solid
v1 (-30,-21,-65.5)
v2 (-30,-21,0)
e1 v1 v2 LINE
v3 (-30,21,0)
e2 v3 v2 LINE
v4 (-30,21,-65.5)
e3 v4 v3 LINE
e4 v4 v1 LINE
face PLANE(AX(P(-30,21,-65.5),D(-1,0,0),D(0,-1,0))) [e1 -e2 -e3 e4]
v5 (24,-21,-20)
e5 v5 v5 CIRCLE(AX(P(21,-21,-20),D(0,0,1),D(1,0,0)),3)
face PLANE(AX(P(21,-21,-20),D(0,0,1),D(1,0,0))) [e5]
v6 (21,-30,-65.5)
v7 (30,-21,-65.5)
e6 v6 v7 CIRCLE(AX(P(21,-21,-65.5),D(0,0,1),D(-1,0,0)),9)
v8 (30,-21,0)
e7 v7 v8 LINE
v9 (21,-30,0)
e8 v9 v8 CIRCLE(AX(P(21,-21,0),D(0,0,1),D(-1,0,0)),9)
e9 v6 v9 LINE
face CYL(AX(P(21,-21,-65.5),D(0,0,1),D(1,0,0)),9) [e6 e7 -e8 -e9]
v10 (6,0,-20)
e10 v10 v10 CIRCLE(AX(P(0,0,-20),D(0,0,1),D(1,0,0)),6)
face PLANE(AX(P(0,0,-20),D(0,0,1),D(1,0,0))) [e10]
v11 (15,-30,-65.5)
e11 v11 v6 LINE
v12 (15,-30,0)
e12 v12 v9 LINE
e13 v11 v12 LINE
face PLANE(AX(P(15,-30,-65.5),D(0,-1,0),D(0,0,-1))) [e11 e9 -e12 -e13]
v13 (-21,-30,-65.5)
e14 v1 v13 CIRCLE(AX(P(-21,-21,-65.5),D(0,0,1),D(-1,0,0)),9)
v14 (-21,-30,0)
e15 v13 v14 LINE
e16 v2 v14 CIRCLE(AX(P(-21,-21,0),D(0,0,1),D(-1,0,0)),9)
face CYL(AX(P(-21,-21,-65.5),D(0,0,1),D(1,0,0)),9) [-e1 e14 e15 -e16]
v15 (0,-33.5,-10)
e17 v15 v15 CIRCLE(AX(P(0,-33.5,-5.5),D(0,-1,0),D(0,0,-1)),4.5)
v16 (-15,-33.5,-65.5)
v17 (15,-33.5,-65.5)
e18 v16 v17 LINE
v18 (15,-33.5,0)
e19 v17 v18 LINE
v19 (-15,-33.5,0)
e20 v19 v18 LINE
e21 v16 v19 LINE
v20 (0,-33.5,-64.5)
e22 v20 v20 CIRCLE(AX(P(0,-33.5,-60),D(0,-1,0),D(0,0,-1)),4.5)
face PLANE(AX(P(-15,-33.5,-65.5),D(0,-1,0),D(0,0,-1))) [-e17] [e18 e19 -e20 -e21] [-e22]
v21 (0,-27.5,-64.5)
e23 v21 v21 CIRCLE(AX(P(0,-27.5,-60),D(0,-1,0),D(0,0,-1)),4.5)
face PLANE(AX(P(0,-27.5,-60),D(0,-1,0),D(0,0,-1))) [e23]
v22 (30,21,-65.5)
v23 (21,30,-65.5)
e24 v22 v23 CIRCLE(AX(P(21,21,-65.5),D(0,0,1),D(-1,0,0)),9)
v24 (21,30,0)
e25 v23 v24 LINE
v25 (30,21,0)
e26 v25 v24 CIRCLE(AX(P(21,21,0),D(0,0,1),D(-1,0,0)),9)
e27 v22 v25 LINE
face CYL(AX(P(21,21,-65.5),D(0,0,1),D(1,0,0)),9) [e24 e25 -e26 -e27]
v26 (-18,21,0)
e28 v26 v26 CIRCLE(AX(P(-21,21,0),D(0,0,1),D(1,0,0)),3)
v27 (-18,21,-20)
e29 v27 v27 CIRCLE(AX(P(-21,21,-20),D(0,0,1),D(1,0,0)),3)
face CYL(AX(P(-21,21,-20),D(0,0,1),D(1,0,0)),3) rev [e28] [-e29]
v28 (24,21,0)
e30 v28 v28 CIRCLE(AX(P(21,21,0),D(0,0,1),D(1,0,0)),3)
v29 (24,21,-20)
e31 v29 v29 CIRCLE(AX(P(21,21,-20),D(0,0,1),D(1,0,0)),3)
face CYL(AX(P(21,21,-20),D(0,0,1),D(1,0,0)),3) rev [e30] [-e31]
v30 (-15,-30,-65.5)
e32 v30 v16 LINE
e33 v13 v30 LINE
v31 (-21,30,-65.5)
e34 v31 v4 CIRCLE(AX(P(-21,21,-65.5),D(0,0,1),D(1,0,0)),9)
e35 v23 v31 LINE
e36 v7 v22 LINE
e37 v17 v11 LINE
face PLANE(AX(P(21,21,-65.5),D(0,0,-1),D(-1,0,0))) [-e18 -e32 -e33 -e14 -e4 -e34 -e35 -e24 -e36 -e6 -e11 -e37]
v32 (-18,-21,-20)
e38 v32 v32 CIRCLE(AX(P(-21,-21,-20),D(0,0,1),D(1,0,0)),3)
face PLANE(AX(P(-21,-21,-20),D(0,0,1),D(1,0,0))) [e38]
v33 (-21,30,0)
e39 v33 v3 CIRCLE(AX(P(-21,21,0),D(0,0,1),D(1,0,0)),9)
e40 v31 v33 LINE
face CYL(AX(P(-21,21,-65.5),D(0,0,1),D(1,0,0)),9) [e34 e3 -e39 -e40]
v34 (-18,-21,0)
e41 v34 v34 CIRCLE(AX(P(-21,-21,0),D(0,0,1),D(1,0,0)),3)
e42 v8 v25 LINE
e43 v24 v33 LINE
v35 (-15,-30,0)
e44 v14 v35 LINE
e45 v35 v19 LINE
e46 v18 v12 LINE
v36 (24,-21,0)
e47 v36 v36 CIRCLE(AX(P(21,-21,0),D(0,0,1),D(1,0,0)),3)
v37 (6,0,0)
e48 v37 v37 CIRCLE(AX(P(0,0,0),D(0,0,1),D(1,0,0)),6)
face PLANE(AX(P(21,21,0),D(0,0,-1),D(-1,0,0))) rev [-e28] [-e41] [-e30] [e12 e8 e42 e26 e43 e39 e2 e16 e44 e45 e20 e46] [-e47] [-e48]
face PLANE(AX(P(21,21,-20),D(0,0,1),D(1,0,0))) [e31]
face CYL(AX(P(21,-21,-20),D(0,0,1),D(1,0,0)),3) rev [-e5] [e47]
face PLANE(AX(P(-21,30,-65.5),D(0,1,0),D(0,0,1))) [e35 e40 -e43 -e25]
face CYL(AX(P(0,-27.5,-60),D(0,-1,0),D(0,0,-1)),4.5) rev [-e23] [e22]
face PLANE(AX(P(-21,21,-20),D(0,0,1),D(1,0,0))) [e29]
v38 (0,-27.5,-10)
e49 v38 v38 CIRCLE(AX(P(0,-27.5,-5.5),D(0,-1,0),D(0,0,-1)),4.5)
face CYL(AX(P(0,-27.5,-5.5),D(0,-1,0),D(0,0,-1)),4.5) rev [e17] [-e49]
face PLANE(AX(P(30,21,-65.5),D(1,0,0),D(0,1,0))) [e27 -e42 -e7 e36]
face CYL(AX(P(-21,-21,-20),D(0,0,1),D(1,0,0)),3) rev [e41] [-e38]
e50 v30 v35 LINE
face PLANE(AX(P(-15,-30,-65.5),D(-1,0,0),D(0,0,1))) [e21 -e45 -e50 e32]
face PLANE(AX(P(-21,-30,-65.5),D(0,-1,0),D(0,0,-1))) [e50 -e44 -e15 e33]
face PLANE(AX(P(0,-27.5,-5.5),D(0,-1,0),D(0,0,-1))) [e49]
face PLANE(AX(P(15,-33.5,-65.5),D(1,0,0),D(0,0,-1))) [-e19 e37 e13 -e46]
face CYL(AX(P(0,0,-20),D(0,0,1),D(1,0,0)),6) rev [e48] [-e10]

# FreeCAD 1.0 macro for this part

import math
import FreeCAD as App
import Part
import Sketcher

doc = App.newDocument("Part")
body = doc.addObject("PartDesign::Body", "Body")

sketch1 = doc.addObject("Sketcher::SketchObject", "Sketch")
body.addObject(sketch1)
sketch1.AttachmentSupport = (doc.XY_Plane, [""])
sketch1.MapMode = "FlatFace"
sketch1.addGeometry([
    Part.LineSegment(App.Vector(-15, -30, 0), App.Vector(-15, -33.5, 0)),
    Part.LineSegment(App.Vector(-15, -33.5, 0), App.Vector(15, -33.5, 0)),
    Part.LineSegment(App.Vector(15, -33.5, 0), App.Vector(15, -30, 0)),
    Part.LineSegment(App.Vector(15, -30, 0), App.Vector(21, -30, 0)),
    Part.ArcOfCircle(Part.Circle(App.Vector(21, -21, 0), App.Vector(0, 0, 1), 9), math.radians(-90), math.radians(0)),
    Part.LineSegment(App.Vector(30, -21, 0), App.Vector(30, 21, 0)),
    Part.ArcOfCircle(Part.Circle(App.Vector(21, 21, 0), App.Vector(0, 0, 1), 9), math.radians(0), math.radians(90)),
    Part.LineSegment(App.Vector(21, 30, 0), App.Vector(-21, 30, 0)),
    Part.ArcOfCircle(Part.Circle(App.Vector(-21, 21, 0), App.Vector(0, 0, 1), 9), math.radians(90), math.radians(180)),
    Part.LineSegment(App.Vector(-30, 21, 0), App.Vector(-30, -21, 0)),
    Part.ArcOfCircle(Part.Circle(App.Vector(-21, -21, 0), App.Vector(0, 0, 1), 9), math.radians(180), math.radians(270)),
    Part.LineSegment(App.Vector(-21, -30, 0), App.Vector(-15, -30, 0)),
], False)
sketch1.addConstraint([
    Sketcher.Constraint("Coincident", 0, 2, 1, 1),
    Sketcher.Constraint("Coincident", 1, 2, 2, 1),
    Sketcher.Constraint("Coincident", 2, 2, 3, 1),
    Sketcher.Constraint("Tangent", 3, 2, 4, 1),
    Sketcher.Constraint("Tangent", 4, 2, 5, 1),
    Sketcher.Constraint("Tangent", 5, 2, 6, 1),
    Sketcher.Constraint("Tangent", 6, 2, 7, 1),
    Sketcher.Constraint("Tangent", 7, 2, 8, 1),
    Sketcher.Constraint("Tangent", 8, 2, 9, 1),
    Sketcher.Constraint("Tangent", 9, 2, 10, 1),
    Sketcher.Constraint("Tangent", 10, 2, 11, 1),
    Sketcher.Constraint("Coincident", 11, 2, 0, 1),
    Sketcher.Constraint("Vertical", 0),
    Sketcher.Constraint("Horizontal", 1),
    Sketcher.Constraint("Vertical", 2),
    Sketcher.Constraint("Horizontal", 3),
    Sketcher.Constraint("Vertical", 5),
    Sketcher.Constraint("Horizontal", 7),
    Sketcher.Constraint("Vertical", 9),
    Sketcher.Constraint("Horizontal", 11),
    Sketcher.Constraint("Equal", 4, 6),
    Sketcher.Constraint("Equal", 6, 8),
    Sketcher.Constraint("Equal", 8, 10),
    Sketcher.Constraint("Symmetric", 4, 3, 8, 3, -1, 1),
    Sketcher.Constraint("Symmetric", 2, 2, 11, 2, -2),
    Sketcher.Constraint("Equal", 7, 5),
    Sketcher.Constraint("Radius", 4, 9.0),
    Sketcher.Constraint("DistanceX", 1, 1, 1, 2, 30.0),
    Sketcher.Constraint("DistanceX", 3, 1, 3, 2, 6.0),
    Sketcher.Constraint("DistanceY", 0, 2, 0, 1, 3.5),
])
pad1 = doc.addObject("PartDesign::Pad", "Pad")
body.addObject(pad1)
pad1.Profile = sketch1
pad1.Length = 65.5
pad1.Reversed = True

sketch2 = doc.addObject("Sketcher::SketchObject", "Sketch001")
body.addObject(sketch2)
sketch2.AttachmentSupport = (doc.XY_Plane, [""])
sketch2.MapMode = "FlatFace"
sketch2.addGeometry([
    Part.Circle(App.Vector(-21, 21, 0), App.Vector(0, 0, 1), 3),
    Part.Circle(App.Vector(21, 21, 0), App.Vector(0, 0, 1), 3),
    Part.Circle(App.Vector(21, -21, 0), App.Vector(0, 0, 1), 3),
    Part.Circle(App.Vector(-21, -21, 0), App.Vector(0, 0, 1), 3),
], False)
sketch2.addConstraint([
    Sketcher.Constraint("Equal", 0, 1),
    Sketcher.Constraint("Equal", 1, 2),
    Sketcher.Constraint("Equal", 2, 3),
    Sketcher.Constraint("Symmetric", 0, 3, 2, 3, -1, 1),
    Sketcher.Constraint("Symmetric", 1, 3, 3, 3, -1, 1),
    Sketcher.Constraint("Symmetric", 0, 3, 1, 3, -2),
    Sketcher.Constraint("Diameter", 0, 6.0),
    Sketcher.Constraint("DistanceX", 0, 3, -1, 1, 21.0),
    Sketcher.Constraint("DistanceY", -1, 1, 0, 3, 21.0),
])
pocket1 = doc.addObject("PartDesign::Pocket", "Pocket")
body.addObject(pocket1)
pocket1.Profile = sketch2
pocket1.Length = 20

sketch3 = doc.addObject("Sketcher::SketchObject", "Sketch002")
body.addObject(sketch3)
sketch3.AttachmentSupport = (doc.XY_Plane, [""])
sketch3.MapMode = "FlatFace"
sketch3.addGeometry(Part.Circle(App.Vector(0, 0, 0), App.Vector(0, 0, 1), 6), False)
sketch3.addConstraint([
    Sketcher.Constraint("Coincident", 0, 3, -1, 1),
    Sketcher.Constraint("Diameter", 0, 12.0),
])
pocket2 = doc.addObject("PartDesign::Pocket", "Pocket001")
body.addObject(pocket2)
pocket2.Profile = sketch3
pocket2.Length = 20

sketch4 = doc.addObject("Sketcher::SketchObject", "Sketch003")
body.addObject(sketch4)
sketch4.AttachmentSupport = (doc.XZ_Plane, [""])
sketch4.MapMode = "FlatFace"
sketch4.AttachmentOffset = App.Placement(App.Vector(0, 0, 33.5), App.Rotation())
sketch4.addGeometry([
    Part.Circle(App.Vector(0, -5.5, 0), App.Vector(0, 0, 1), 4.5),
    Part.Circle(App.Vector(0, -60, 0), App.Vector(0, 0, 1), 4.5),
], False)
sketch4.addConstraint([
    Sketcher.Constraint("Equal", 0, 1),
    Sketcher.Constraint("PointOnObject", 0, 3, -2),
    Sketcher.Constraint("PointOnObject", 1, 3, -2),
    Sketcher.Constraint("Diameter", 0, 9.0),
    Sketcher.Constraint("DistanceY", 1, 3, -1, 1, 60.0),
    Sketcher.Constraint("DistanceY", 0, 3, -1, 1, 5.5),
])
pocket3 = doc.addObject("PartDesign::Pocket", "Pocket002")
body.addObject(pocket3)
pocket3.Profile = sketch4
pocket3.Length = 6

doc.recompute()
